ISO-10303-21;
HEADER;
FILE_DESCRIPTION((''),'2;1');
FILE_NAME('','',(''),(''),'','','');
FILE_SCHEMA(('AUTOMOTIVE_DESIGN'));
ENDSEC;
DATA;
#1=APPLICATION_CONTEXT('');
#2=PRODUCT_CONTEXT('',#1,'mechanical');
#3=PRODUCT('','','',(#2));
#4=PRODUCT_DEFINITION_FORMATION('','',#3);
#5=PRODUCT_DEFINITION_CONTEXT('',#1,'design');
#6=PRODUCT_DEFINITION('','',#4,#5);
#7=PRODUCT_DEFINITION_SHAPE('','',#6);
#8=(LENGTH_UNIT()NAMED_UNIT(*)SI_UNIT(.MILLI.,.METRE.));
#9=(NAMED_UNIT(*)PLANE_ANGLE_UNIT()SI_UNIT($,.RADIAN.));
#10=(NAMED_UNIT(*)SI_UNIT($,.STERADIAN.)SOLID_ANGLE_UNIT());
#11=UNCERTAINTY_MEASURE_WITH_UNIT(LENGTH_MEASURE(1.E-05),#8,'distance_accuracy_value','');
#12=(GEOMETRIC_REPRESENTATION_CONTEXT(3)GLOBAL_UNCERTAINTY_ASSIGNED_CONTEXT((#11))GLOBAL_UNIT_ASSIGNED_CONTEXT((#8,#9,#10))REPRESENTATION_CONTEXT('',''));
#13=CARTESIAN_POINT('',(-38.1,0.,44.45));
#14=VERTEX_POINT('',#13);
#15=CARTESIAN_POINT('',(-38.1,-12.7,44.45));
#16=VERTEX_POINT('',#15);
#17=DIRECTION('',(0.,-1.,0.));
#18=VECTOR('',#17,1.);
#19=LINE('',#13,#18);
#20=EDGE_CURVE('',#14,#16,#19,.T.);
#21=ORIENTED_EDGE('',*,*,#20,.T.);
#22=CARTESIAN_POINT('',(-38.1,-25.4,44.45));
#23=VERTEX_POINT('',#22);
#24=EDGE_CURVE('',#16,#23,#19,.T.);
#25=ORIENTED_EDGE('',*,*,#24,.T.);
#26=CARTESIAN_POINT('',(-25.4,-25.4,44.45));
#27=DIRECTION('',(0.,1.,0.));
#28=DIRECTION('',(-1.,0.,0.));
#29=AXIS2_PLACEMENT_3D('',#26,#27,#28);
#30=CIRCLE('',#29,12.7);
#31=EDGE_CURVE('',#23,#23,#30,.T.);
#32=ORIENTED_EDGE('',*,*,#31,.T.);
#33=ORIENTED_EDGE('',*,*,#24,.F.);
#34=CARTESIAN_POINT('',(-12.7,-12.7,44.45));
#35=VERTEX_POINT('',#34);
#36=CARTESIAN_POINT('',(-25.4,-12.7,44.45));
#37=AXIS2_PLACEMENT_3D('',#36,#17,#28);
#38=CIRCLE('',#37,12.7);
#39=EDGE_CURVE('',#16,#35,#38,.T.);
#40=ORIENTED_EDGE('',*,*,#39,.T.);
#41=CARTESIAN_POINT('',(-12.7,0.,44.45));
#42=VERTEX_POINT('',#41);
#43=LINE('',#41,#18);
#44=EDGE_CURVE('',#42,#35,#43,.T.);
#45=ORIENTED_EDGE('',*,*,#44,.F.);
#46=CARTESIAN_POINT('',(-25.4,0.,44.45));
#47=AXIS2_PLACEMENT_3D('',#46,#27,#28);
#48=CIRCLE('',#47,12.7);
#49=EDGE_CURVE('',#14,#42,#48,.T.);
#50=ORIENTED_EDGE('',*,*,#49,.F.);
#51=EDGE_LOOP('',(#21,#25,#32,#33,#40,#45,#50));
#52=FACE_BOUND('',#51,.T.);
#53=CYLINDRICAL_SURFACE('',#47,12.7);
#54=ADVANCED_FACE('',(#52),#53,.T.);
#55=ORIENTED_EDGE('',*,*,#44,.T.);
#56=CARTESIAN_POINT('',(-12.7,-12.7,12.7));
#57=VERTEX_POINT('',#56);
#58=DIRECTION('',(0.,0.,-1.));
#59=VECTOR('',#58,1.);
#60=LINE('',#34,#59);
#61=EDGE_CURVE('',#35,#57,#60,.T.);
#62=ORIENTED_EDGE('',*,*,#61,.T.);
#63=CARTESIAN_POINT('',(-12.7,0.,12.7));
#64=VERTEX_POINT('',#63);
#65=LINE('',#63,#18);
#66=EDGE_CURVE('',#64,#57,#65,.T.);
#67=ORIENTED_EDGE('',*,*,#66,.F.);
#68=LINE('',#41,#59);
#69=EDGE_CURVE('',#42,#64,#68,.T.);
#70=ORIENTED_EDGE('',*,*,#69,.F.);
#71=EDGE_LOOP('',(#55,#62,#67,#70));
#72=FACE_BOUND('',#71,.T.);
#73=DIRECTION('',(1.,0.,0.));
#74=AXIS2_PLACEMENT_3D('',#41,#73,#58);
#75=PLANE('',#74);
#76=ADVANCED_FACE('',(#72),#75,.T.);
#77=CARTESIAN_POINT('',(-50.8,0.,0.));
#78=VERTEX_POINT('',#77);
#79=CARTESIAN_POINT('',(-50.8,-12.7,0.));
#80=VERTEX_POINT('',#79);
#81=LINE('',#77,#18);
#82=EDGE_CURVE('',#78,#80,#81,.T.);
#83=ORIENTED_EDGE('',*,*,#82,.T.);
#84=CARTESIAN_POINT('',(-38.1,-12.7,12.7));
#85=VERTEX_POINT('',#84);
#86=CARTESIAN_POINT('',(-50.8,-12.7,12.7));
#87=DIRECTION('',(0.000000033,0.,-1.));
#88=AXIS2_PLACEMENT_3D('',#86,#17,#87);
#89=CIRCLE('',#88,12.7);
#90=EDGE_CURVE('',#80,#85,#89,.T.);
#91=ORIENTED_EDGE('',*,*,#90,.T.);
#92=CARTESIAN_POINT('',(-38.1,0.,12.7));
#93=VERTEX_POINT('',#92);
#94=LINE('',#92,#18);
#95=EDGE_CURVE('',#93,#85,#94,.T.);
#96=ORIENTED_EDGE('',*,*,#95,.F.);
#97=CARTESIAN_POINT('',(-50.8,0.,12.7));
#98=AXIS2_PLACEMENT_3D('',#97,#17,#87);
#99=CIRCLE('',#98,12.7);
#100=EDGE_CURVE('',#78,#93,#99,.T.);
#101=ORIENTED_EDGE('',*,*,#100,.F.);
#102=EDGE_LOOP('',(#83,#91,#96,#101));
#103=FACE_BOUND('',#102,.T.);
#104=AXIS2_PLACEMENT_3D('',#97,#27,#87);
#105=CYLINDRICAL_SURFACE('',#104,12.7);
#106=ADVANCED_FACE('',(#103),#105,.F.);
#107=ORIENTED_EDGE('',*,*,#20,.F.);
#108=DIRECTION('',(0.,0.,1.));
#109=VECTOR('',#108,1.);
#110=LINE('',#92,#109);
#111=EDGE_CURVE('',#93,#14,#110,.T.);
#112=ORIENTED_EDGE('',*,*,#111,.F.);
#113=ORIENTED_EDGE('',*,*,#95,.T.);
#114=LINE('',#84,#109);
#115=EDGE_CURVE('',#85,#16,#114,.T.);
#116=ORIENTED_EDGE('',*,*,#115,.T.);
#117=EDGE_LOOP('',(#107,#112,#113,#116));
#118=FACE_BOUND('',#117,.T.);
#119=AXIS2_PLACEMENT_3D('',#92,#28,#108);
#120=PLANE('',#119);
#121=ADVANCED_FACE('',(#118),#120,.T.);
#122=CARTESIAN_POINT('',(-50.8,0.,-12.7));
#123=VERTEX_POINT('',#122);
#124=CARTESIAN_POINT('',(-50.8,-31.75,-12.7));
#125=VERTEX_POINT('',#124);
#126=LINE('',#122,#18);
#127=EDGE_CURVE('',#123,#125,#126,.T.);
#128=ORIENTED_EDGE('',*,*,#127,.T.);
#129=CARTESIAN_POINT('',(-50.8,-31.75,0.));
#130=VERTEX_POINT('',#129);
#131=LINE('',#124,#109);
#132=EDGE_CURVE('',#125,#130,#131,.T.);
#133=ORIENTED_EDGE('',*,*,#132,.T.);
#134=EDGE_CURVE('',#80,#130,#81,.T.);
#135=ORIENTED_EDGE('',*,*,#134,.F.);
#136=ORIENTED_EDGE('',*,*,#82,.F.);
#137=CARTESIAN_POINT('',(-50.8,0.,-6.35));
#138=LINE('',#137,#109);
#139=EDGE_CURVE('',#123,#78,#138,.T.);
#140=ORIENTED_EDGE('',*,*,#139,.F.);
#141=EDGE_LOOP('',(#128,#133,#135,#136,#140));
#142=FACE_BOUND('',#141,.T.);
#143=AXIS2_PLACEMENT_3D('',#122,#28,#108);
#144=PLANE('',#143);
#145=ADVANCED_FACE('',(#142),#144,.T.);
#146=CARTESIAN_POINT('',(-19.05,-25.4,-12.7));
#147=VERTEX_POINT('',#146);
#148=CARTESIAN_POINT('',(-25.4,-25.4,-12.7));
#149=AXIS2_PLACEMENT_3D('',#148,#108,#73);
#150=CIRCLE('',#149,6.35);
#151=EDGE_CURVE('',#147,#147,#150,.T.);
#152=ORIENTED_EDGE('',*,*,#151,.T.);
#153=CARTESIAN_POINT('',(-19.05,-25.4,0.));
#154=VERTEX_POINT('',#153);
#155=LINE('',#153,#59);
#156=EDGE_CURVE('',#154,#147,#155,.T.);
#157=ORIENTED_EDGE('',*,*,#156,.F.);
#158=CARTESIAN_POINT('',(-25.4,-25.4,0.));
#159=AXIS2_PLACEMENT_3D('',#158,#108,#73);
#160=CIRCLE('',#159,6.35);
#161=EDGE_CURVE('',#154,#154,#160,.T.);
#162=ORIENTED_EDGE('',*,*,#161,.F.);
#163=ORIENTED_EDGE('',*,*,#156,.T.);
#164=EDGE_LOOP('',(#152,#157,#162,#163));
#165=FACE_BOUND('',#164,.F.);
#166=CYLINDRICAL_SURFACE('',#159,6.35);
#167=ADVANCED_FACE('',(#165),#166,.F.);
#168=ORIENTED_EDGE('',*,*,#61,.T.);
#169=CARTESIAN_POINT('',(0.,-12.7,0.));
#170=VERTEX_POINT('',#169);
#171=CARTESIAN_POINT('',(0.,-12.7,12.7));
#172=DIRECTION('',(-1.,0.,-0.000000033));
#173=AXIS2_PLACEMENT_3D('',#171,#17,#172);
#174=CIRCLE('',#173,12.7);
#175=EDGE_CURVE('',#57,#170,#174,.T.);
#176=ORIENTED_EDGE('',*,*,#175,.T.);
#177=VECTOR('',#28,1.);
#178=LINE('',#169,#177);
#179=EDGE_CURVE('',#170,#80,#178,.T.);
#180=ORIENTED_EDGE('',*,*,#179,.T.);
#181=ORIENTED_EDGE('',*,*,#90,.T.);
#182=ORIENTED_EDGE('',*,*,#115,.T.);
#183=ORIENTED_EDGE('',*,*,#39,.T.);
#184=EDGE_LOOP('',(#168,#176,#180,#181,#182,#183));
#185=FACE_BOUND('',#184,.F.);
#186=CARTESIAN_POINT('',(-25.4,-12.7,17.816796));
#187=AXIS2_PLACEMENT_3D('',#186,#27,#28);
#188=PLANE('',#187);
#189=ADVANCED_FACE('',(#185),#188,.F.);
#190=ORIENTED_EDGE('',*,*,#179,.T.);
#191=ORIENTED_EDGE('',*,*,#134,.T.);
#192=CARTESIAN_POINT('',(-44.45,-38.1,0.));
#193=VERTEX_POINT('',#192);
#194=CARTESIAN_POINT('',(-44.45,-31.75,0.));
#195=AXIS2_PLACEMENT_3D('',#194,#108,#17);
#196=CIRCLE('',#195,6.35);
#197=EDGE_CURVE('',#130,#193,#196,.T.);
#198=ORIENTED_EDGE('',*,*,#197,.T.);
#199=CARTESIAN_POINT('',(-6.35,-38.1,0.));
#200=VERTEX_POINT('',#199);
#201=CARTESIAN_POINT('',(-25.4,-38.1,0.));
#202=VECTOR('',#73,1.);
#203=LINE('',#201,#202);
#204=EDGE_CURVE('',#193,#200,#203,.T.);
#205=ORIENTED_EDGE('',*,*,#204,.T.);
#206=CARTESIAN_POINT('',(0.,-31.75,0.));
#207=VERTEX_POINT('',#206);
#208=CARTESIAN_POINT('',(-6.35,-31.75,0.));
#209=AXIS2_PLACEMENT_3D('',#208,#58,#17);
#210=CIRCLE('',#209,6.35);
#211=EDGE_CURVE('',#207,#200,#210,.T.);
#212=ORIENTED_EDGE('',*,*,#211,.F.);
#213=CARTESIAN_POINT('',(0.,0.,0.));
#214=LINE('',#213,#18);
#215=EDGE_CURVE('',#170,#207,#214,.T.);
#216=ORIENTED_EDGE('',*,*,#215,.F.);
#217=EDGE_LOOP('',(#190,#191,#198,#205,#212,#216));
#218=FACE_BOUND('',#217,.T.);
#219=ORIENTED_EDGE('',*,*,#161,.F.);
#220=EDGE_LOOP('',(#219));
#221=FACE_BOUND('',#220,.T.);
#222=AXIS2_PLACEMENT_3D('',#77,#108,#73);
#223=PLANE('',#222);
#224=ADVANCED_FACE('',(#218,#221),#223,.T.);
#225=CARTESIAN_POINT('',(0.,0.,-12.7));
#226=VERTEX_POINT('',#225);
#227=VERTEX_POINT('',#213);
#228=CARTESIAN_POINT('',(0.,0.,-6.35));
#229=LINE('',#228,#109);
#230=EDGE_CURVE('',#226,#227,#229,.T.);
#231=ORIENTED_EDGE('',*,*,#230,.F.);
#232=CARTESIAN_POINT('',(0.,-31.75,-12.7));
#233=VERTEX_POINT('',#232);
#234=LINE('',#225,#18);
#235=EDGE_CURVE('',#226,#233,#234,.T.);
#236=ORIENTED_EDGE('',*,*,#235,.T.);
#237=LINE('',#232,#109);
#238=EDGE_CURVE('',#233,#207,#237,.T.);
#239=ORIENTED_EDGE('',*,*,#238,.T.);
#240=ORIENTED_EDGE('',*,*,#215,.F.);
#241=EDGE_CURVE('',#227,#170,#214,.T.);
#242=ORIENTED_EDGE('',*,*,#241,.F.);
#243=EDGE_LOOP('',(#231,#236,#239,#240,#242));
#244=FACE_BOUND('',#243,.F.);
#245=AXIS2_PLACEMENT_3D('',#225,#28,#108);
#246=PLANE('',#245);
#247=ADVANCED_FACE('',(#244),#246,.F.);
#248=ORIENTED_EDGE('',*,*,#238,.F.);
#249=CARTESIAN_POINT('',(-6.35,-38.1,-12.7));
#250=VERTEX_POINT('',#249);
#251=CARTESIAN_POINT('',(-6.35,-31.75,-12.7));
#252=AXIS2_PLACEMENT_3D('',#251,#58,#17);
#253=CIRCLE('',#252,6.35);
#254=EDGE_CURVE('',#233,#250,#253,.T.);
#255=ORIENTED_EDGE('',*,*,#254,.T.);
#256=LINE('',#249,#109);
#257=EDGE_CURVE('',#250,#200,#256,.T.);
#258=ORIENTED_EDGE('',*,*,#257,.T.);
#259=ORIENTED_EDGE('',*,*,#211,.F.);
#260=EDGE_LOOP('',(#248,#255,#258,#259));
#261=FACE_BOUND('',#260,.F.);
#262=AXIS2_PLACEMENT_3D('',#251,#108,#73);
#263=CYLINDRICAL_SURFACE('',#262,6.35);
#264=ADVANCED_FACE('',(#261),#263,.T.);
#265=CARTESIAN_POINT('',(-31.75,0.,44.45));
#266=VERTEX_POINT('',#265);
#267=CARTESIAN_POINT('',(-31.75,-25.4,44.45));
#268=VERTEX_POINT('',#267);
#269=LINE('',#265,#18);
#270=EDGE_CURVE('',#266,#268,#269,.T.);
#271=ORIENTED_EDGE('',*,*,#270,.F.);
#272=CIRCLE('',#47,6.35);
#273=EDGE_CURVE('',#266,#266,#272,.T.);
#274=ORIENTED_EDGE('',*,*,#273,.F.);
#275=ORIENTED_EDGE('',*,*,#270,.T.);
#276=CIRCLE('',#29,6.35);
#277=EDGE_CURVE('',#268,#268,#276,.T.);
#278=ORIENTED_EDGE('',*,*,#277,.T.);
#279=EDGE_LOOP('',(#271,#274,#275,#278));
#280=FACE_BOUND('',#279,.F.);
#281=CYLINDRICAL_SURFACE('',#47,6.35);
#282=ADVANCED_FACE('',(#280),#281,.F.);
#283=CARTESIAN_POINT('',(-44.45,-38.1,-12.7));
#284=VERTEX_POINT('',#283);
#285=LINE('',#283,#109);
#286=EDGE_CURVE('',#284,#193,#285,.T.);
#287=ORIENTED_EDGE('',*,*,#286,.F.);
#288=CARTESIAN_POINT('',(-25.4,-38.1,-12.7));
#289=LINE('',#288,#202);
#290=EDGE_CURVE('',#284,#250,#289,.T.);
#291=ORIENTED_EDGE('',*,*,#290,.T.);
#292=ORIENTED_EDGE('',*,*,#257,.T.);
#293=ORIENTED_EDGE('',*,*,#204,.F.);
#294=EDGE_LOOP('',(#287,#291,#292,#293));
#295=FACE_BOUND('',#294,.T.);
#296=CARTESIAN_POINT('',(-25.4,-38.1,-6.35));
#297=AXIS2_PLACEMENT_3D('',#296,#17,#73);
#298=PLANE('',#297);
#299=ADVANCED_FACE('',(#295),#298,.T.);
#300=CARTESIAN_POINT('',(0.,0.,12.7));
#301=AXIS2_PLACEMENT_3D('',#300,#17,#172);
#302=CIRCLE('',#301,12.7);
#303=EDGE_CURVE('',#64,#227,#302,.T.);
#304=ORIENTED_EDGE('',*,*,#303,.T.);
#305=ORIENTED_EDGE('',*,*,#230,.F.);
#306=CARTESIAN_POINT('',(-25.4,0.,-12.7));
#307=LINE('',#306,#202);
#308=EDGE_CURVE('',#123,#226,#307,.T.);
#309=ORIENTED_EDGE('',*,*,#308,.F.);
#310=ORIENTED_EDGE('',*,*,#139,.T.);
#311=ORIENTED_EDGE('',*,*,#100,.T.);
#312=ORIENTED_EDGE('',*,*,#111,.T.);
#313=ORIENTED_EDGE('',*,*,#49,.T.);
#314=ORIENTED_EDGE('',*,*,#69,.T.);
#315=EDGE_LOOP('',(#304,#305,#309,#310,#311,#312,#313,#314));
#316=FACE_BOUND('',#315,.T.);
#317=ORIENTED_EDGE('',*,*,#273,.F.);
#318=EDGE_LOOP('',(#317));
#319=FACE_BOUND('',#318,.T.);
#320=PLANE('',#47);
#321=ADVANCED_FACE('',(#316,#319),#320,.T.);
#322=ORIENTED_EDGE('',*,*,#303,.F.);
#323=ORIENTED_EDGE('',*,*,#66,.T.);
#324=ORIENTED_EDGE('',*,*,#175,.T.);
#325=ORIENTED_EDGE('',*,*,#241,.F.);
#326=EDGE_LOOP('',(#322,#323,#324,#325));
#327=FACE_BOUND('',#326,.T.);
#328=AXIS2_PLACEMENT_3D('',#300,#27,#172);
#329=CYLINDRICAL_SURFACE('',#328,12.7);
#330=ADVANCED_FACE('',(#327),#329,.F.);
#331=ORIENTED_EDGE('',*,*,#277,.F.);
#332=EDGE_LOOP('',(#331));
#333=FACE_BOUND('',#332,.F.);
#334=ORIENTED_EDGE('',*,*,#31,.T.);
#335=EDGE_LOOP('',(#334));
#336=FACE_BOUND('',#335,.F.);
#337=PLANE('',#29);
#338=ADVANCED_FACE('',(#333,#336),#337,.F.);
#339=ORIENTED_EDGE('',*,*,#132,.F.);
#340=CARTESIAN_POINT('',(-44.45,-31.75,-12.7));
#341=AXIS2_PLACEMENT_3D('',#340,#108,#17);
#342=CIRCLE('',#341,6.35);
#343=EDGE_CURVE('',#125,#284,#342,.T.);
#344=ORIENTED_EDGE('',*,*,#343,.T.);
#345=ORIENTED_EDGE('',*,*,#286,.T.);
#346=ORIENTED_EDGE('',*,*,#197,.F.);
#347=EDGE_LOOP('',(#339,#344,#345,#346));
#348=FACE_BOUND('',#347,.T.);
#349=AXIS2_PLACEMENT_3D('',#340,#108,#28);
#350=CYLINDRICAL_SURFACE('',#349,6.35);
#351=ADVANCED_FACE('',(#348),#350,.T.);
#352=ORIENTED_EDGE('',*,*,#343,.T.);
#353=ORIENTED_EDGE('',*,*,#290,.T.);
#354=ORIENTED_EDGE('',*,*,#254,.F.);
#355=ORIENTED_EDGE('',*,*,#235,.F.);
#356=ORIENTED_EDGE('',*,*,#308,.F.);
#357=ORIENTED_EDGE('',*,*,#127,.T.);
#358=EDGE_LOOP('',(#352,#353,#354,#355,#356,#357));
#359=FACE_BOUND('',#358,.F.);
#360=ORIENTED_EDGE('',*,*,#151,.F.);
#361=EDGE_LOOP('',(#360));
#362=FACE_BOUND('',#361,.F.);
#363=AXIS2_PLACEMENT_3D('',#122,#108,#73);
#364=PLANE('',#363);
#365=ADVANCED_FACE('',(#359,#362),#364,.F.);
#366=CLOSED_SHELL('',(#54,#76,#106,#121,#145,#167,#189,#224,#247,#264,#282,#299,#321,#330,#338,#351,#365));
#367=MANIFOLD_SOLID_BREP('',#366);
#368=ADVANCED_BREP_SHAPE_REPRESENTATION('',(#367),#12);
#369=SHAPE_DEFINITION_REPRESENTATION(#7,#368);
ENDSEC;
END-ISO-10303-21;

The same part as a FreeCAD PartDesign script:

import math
import FreeCAD as App
import Part
import Sketcher
Q = App.Units.Quantity


def edges_at(feature, points):
    """Names of the edges that pass closest to the given points."""
    edges = feature.Shape.Edges
    near = lambda p: min(range(len(edges)), key=lambda i: edges[i].distToShape(Part.Vertex(*p))[0])
    return sorted({f"Edge{near(p) + 1}" for p in points})


def add_polygon(sketch, points):
    """Adds a closed chain of lines whose ends are joined by coincident constraints."""
    first, n = sketch.GeometryCount, len(points)
    for a, b in zip(points, points[1:] + points[:1]):
        sketch.addGeometry(Part.LineSegment(App.Vector(*a, 0), App.Vector(*b, 0)), False)
    for i in range(n):
        sketch.addConstraint(Sketcher.Constraint("Coincident", first + i, 2, first + (i + 1) % n, 1))

doc = App.newDocument("Part")
body = doc.addObject("PartDesign::Body", "Body")

# Sketch on XZ plane
sketch1 = body.newObject("Sketcher::SketchObject", "Sketch")
sketch1.AttachmentSupport = (doc.getObject("XZ_Plane"), [""])
sketch1.MapMode = "FlatFace"
add_polygon(sketch1, [(-50.8, 0), (-50.8, -12.7), (0, -12.7), (0, 0)])  # lines 0-3
sketch1.addConstraint([
    Sketcher.Constraint("Vertical", 0),
    Sketcher.Constraint("Horizontal", 1),
    Sketcher.Constraint("Vertical", 2),
    Sketcher.Constraint("Horizontal", 3),
    Sketcher.Constraint("Coincident", 2, 2, -1, 1),
    Sketcher.Constraint("DistanceX", 1, 1, 1, 2, Q("2 in")),
    Sketcher.Constraint("DistanceY", 0, 2, 0, 1, Q("0.5 in")),
])
pad1 = body.newObject("PartDesign::Pad", "Pad")
pad1.Profile = sketch1
pad1.Length = Q("1.5 in")

# Sketch on XZ plane
sketch2 = body.newObject("Sketcher::SketchObject", "Sketch001")
sketch2.AttachmentSupport = (doc.getObject("XZ_Plane"), [""])
sketch2.MapMode = "FlatFace"
sketch2.addGeometry([
    Part.LineSegment(App.Vector(-38.1, 12.7, 0), App.Vector(-38.1, 44.45, 0)),  # 0
    Part.ArcOfCircle(Part.Circle(App.Vector(-25.4, 44.45, 0), App.Vector(0, 0, 1), 12.7), math.radians(180), math.radians(360)),  # 1
    Part.LineSegment(App.Vector(-12.7, 44.45, 0), App.Vector(-12.7, 12.7, 0)),  # 2
    Part.ArcOfCircle(Part.Circle(App.Vector(0, 12.7, 0), App.Vector(0, 0, 1), 12.7), math.radians(-179.999998), math.radians(-90.000002)),  # 3
    Part.LineSegment(App.Vector(0, 0, 0), App.Vector(-50.8, 0, 0)),  # 4
    Part.ArcOfCircle(Part.Circle(App.Vector(-50.8, 12.7, 0), App.Vector(0, 0, 1), 12.7), math.radians(-89.999998), math.radians(-0.000002)),  # 5
], False)
sketch2.addConstraint([
    Sketcher.Constraint("Tangent", 0, 2, 1, 1),
    Sketcher.Constraint("Tangent", 1, 2, 2, 1),
    Sketcher.Constraint("Tangent", 2, 2, 3, 1),
    Sketcher.Constraint("Tangent", 3, 2, 4, 1),
    Sketcher.Constraint("Tangent", 4, 2, 5, 1),
    Sketcher.Constraint("Tangent", 5, 2, 0, 1),
    Sketcher.Constraint("Vertical", 0),
    Sketcher.Constraint("Vertical", 2),
    Sketcher.Constraint("Horizontal", 4),
    Sketcher.Constraint("Coincident", 3, 2, -1, 1),
    Sketcher.Constraint("Equal", 1, 3),
    Sketcher.Constraint("Equal", 3, 5),
    Sketcher.Constraint("Radius", 1, Q("0.5 in")),
    Sketcher.Constraint("DistanceY", 0, 1, 0, 2, Q("1.25 in")),
])
pad2 = body.newObject("PartDesign::Pad", "Pad001")
pad2.Profile = sketch2
pad2.Length = Q("0.5 in")

# Sketch on XZ plane
sketch3 = body.newObject("Sketcher::SketchObject", "Sketch002")
sketch3.AttachmentSupport = (doc.getObject("XZ_Plane"), [""])
sketch3.MapMode = "FlatFace"
sketch3.addGeometry([
    Part.Circle(App.Vector(-25.4, 44.45, 0), App.Vector(0, 0, 1), 12.7),
    Part.Circle(App.Vector(-25.4, 44.45, 0), App.Vector(0, 0, 1), 6.35),
], False)
sketch3.addConstraint([
    Sketcher.Constraint("Coincident", 1, 3, 0, 3),
    Sketcher.Constraint("Diameter", 0, Q("1 in")),
    Sketcher.Constraint("Diameter", 1, Q("0.5 in")),
    Sketcher.Constraint("DistanceX", 0, 3, -1, 1, Q("1 in")),
    Sketcher.Constraint("DistanceY", -1, 1, 0, 3, Q("1.75 in")),
])
pad3 = body.newObject("PartDesign::Pad", "Pad002")
pad3.Profile = sketch3
pad3.Length = Q("1 in")

# Sketch on XY plane
sketch4 = body.newObject("Sketcher::SketchObject", "Sketch003")
sketch4.AttachmentSupport = (doc.getObject("XY_Plane"), [""])
sketch4.MapMode = "FlatFace"
sketch4.addGeometry(Part.Circle(App.Vector(-25.4, -25.4, 0), App.Vector(0, 0, 1), 6.35), False)
sketch4.addConstraint([
    Sketcher.Constraint("Diameter", 0, Q("0.5 in")),
    Sketcher.Constraint("DistanceX", 0, 3, -1, 1, Q("1 in")),
    Sketcher.Constraint("DistanceY", 0, 3, -1, 1, Q("1 in")),
])
pocket1 = body.newObject("PartDesign::Pocket", "Pocket")
pocket1.Profile = sketch4
pocket1.Type = "ThroughAll"
doc.recompute()

fillet = body.newObject("PartDesign::Fillet", "Fillet")
fillet.Base = (pocket1, edges_at(pocket1, [(-50.8, -38.1, -6.35), (0, -38.1, -6.35)]))
fillet.Radius = Q("0.25 in")

doc.recompute()
